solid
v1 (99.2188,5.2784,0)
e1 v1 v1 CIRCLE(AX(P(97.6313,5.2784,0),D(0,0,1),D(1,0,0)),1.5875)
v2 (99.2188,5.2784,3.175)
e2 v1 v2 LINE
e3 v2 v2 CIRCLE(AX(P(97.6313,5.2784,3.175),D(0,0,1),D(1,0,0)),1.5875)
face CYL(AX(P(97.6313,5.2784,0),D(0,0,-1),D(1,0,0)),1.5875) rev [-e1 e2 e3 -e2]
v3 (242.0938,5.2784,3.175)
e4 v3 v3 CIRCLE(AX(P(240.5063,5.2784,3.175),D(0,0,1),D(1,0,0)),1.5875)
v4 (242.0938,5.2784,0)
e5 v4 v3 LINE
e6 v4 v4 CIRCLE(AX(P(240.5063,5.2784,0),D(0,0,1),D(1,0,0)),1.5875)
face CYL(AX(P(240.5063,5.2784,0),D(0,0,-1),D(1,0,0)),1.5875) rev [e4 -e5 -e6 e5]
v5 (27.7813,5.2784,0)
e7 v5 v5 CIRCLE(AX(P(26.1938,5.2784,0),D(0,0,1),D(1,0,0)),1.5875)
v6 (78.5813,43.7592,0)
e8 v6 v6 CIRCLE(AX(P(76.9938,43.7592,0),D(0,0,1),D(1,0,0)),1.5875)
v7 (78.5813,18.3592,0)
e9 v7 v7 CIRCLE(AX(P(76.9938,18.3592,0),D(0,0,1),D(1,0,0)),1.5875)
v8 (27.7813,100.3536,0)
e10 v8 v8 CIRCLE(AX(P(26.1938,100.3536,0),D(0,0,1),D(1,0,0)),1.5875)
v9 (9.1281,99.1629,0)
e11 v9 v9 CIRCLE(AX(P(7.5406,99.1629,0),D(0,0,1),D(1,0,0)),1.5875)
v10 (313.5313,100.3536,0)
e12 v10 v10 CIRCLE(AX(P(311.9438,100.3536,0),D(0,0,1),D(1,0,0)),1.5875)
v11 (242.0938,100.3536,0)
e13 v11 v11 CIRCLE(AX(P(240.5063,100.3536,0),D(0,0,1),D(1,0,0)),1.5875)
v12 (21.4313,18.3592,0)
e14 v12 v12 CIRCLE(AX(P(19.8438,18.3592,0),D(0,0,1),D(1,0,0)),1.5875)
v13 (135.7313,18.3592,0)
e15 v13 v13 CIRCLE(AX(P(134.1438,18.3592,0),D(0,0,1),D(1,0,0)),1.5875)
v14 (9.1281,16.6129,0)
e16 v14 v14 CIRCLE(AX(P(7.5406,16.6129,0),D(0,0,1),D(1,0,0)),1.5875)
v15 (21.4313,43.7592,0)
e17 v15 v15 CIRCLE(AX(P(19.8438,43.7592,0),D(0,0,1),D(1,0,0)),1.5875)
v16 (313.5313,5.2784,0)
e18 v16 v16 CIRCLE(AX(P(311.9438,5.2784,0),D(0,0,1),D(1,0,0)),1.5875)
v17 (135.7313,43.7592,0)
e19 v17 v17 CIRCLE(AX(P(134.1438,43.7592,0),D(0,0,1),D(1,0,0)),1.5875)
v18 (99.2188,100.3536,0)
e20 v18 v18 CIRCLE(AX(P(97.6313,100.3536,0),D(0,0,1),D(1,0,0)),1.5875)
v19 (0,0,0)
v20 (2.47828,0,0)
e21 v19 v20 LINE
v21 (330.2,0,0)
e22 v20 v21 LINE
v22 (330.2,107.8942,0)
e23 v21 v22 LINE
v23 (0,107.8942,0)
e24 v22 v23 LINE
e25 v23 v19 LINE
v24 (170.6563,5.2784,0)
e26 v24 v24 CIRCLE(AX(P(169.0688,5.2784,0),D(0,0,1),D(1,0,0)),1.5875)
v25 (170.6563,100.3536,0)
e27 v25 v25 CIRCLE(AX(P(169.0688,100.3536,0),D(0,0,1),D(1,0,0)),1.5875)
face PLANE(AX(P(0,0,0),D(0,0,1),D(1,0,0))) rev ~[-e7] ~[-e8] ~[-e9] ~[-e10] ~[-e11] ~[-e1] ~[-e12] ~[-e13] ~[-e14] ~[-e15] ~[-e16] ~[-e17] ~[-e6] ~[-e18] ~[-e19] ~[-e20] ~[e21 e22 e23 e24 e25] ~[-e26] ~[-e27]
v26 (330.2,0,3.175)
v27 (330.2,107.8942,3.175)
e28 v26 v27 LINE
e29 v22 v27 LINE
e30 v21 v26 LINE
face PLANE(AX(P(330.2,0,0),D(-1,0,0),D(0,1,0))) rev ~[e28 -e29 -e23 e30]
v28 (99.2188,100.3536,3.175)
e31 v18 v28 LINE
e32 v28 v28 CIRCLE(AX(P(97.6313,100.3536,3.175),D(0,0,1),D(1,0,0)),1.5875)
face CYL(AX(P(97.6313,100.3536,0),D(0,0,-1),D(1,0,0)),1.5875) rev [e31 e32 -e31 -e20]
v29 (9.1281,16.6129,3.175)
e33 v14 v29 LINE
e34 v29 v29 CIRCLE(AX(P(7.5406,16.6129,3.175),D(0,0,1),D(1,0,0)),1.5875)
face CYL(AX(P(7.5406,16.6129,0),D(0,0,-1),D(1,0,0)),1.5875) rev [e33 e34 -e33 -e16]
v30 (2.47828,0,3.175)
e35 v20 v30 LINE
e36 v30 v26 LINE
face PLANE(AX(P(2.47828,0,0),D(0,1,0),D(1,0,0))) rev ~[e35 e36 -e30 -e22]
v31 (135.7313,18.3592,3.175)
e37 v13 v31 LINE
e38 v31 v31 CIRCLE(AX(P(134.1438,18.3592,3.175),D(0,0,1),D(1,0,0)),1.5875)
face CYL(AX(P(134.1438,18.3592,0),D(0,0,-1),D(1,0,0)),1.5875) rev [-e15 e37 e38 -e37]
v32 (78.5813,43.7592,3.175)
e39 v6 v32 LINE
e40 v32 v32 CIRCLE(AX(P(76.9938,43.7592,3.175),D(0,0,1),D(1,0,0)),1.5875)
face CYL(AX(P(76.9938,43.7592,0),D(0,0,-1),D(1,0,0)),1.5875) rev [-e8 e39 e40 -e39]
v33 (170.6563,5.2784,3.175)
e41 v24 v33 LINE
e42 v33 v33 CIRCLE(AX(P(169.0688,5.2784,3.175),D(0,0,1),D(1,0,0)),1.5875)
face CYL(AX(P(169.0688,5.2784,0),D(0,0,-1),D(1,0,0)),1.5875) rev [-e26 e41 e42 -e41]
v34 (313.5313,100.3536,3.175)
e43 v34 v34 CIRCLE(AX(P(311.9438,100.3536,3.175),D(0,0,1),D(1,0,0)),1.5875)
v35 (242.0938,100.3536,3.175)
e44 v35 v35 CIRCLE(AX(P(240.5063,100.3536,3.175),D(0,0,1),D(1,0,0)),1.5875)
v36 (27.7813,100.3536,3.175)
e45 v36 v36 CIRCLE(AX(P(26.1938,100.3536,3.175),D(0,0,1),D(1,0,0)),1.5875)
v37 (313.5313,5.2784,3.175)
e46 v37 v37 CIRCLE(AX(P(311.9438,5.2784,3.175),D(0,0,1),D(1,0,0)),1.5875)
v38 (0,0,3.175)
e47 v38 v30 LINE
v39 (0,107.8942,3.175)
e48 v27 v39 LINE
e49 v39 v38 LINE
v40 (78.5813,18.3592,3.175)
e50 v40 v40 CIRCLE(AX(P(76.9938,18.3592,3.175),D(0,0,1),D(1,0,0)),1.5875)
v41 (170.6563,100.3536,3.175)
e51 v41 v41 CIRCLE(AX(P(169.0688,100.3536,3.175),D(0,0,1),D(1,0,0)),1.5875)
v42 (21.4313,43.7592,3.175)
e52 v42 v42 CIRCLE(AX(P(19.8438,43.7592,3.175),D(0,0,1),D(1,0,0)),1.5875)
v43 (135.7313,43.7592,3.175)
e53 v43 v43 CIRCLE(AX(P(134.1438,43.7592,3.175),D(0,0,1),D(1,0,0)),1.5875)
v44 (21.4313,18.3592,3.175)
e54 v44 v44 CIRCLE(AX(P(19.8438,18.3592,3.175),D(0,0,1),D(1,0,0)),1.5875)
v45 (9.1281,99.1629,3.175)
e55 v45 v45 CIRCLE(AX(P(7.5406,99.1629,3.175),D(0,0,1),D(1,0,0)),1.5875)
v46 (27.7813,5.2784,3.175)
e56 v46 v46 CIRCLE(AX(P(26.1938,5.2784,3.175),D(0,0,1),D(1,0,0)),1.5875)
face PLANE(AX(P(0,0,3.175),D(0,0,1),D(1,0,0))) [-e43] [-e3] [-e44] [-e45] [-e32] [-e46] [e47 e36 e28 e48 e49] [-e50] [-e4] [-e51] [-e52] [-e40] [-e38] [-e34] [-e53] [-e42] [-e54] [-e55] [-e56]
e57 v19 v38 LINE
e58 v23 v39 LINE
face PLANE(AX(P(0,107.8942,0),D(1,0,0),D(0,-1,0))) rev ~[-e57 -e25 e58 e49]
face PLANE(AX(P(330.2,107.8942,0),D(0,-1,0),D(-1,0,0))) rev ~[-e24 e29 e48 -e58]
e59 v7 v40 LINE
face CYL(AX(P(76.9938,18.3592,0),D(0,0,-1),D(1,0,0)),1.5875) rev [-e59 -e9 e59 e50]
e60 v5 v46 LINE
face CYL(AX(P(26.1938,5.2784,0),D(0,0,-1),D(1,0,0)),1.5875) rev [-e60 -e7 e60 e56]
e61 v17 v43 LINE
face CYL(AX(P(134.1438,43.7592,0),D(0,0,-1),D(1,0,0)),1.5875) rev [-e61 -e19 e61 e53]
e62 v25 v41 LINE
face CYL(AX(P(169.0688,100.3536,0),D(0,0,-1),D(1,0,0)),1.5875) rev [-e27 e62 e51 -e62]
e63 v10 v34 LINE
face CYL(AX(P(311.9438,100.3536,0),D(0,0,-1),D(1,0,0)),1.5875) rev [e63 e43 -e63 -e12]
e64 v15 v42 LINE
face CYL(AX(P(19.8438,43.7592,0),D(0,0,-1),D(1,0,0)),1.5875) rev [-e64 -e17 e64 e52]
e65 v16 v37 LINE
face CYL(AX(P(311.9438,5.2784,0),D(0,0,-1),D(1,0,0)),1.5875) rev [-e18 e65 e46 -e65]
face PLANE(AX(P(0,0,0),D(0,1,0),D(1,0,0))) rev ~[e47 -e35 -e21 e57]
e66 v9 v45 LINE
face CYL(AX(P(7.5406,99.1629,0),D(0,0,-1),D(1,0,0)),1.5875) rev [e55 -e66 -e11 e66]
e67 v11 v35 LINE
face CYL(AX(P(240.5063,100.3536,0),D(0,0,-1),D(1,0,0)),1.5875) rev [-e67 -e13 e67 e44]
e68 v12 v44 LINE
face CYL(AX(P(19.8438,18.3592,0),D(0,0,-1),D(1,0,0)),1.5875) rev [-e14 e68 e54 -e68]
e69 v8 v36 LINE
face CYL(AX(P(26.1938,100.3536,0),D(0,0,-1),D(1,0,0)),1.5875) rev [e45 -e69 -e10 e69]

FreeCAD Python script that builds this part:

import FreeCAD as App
import Part
import Sketcher

V = App.Vector
Q = App.Units.Quantity


def add_polygon(sketch, points):
    """Adds a closed chain of lines whose ends are joined by coincident constraints."""
    first, n = sketch.GeometryCount, len(points)
    for a, b in zip(points, points[1:] + points[:1]):
        sketch.addGeometry(Part.LineSegment(App.Vector(*a, 0), App.Vector(*b, 0)), False)
    for i in range(n):
        sketch.addConstraint(Sketcher.Constraint("Coincident", first + i, 2, first + (i + 1) % n, 1))

doc = App.newDocument("Part")
body = doc.addObject("PartDesign::Body", "Body")

# Sketch on XY plane
sketch1 = doc.addObject("Sketcher::SketchObject", "Sketch")
body.addObject(sketch1)
sketch1.AttachmentSupport = (doc.XY_Plane, [""])
sketch1.MapMode = "FlatFace"
add_polygon(sketch1, [(0, 0), (330.2, 0), (330.2, 107.9), (0, 107.9)])  # lines 0-3
sketch1.addGeometry(Part.Circle(V(26.2, 5.3, 0), V(0, 0, 1), 1.6), False)  # 4
sketch1.addGeometry(Part.Circle(V(7.5, 16.6, 0), V(0, 0, 1), 1.6), False)  # 5
sketch1.addGeometry(Part.Circle(V(19.8, 18.4, 0), V(0, 0, 1), 1.6), False)  # 6
sketch1.addGeometry(Part.Circle(V(77, 18.4, 0), V(0, 0, 1), 1.6), False)  # 7
sketch1.addGeometry(Part.Circle(V(97.6, 5.3, 0), V(0, 0, 1), 1.6), False)  # 8
sketch1.addGeometry(Part.Circle(V(134.1, 18.4, 0), V(0, 0, 1), 1.6), False)  # 9
sketch1.addGeometry(Part.Circle(V(19.8, 43.8, 0), V(0, 0, 1), 1.6), False)  # 10
sketch1.addGeometry(Part.Circle(V(77, 43.8, 0), V(0, 0, 1), 1.6), False)  # 11
sketch1.addGeometry(Part.Circle(V(134.1, 43.8, 0), V(0, 0, 1), 1.6), False)  # 12
sketch1.addGeometry(Part.Circle(V(169.1, 5.3, 0), V(0, 0, 1), 1.6), False)  # 13
sketch1.addGeometry(Part.Circle(V(240.5, 5.3, 0), V(0, 0, 1), 1.6), False)  # 14
sketch1.addGeometry(Part.Circle(V(311.9, 5.3, 0), V(0, 0, 1), 1.6), False)  # 15
sketch1.addGeometry(Part.Circle(V(7.5, 99.2, 0), V(0, 0, 1), 1.6), False)  # 16
sketch1.addGeometry(Part.Circle(V(26.2, 100.4, 0), V(0, 0, 1), 1.6), False)  # 17
sketch1.addGeometry(Part.Circle(V(97.6, 100.4, 0), V(0, 0, 1), 1.6), False)  # 18
sketch1.addGeometry(Part.Circle(V(169.1, 100.4, 0), V(0, 0, 1), 1.6), False)  # 19
sketch1.addGeometry(Part.Circle(V(240.5, 100.4, 0), V(0, 0, 1), 1.6), False)  # 20
sketch1.addGeometry(Part.Circle(V(311.9, 100.4, 0), V(0, 0, 1), 1.6), False)  # 21
sketch1.addConstraint([
    Sketcher.Constraint("Horizontal", 0),
    Sketcher.Constraint("Vertical", 1),
    Sketcher.Constraint("Horizontal", 2),
    Sketcher.Constraint("Vertical", 3),
    Sketcher.Constraint("Coincident", 3, 2, -1, 1),
    Sketcher.Constraint("Equal", 4, 5),
    Sketcher.Constraint("Equal", 5, 6),
    Sketcher.Constraint("Equal", 6, 7),
    Sketcher.Constraint("Equal", 7, 8),
    Sketcher.Constraint("Equal", 8, 9),
    Sketcher.Constraint("Equal", 9, 10),
    Sketcher.Constraint("Equal", 10, 11),
    Sketcher.Constraint("Equal", 11, 12),
    Sketcher.Constraint("Equal", 12, 13),
    Sketcher.Constraint("Equal", 13, 14),
    Sketcher.Constraint("Equal", 14, 15),
    Sketcher.Constraint("Equal", 15, 16),
    Sketcher.Constraint("Equal", 16, 17),
    Sketcher.Constraint("Equal", 17, 18),
    Sketcher.Constraint("Equal", 18, 19),
    Sketcher.Constraint("Equal", 19, 20),
    Sketcher.Constraint("Equal", 20, 21),
    Sketcher.Constraint("Horizontal", 6, 3, 7, 3),
    Sketcher.Constraint("Horizontal", 4, 3, 8, 3),
    Sketcher.Constraint("Horizontal", 7, 3, 9, 3),
    Sketcher.Constraint("Horizontal", 10, 3, 11, 3),
    Sketcher.Constraint("Horizontal", 11, 3, 12, 3),
    Sketcher.Constraint("Horizontal", 8, 3, 13, 3),
    Sketcher.Constraint("Horizontal", 13, 3, 14, 3),
    Sketcher.Constraint("Horizontal", 14, 3, 15, 3),
    Sketcher.Constraint("Horizontal", 17, 3, 18, 3),
    Sketcher.Constraint("Horizontal", 18, 3, 19, 3),
    Sketcher.Constraint("Horizontal", 19, 3, 20, 3),
    Sketcher.Constraint("Horizontal", 20, 3, 21, 3),
    Sketcher.Constraint("Vertical", 6, 3, 10, 3),
    Sketcher.Constraint("Vertical", 7, 3, 11, 3),
    Sketcher.Constraint("Vertical", 9, 3, 12, 3),
    Sketcher.Constraint("Vertical", 5, 3, 16, 3),
    Sketcher.Constraint("Vertical", 4, 3, 17, 3),
    Sketcher.Constraint("Vertical", 8, 3, 18, 3),
    Sketcher.Constraint("Vertical", 13, 3, 19, 3),
    Sketcher.Constraint("Vertical", 14, 3, 20, 3),
    Sketcher.Constraint("Vertical", 15, 3, 21, 3),
    Sketcher.Constraint("DistanceX", 0, 1, 0, 2, Q("13 in")),
    Sketcher.Constraint("Diameter", 4, Q("0.125 in")),
    Sketcher.Constraint("DistanceY", 1, 1, 1, 2, Q("4.2478 in")),
    Sketcher.Constraint("DistanceX", 4, 3, 7, 3, Q("2 in")),
    Sketcher.Constraint("DistanceY", 6, 3, 10, 3, Q("1 in")),
    Sketcher.Constraint("DistanceX", 9, 3, 15, 3, Q("7 in")),
    Sketcher.Constraint("DistanceX", 6, 3, 9, 3, Q("4.5 in")),
    Sketcher.Constraint("DistanceX", 6, 3, 4, 3, Q("0.25 in")),
    Sketcher.Constraint("DistanceY", 5, 3, 16, 3, Q("3.25 in")),
    Sketcher.Constraint("DistanceY", 15, 3, 1, 2, Q("4.04 in")),
    Sketcher.Constraint("DistanceX", -1, 1, 4, 3, Q("1.031252 in")),
    Sketcher.Constraint("DistanceX", -1, 1, 5, 3, Q("0.296874 in")),
    Sketcher.Constraint("DistanceX", -1, 1, 8, 3, Q("3.843752 in")),
    Sketcher.Constraint("DistanceX", -1, 1, 13, 3, Q("6.656252 in")),
    Sketcher.Constraint("DistanceX", -1, 1, 14, 3, Q("9.468752 in")),
    Sketcher.Constraint("DistanceY", 4, 3, 6, 3, Q("0.515 in")),
    Sketcher.Constraint("DistanceY", 16, 3, 17, 3, Q("0.046878 in")),
    Sketcher.Constraint("DistanceY", 21, 3, 1, 2, Q("0.296874 in")),
])
pad1 = doc.addObject("PartDesign::Pad", "Pad")
body.addObject(pad1)
pad1.Profile = sketch1
pad1.Length = Q("0.125 in")

doc.recompute()
